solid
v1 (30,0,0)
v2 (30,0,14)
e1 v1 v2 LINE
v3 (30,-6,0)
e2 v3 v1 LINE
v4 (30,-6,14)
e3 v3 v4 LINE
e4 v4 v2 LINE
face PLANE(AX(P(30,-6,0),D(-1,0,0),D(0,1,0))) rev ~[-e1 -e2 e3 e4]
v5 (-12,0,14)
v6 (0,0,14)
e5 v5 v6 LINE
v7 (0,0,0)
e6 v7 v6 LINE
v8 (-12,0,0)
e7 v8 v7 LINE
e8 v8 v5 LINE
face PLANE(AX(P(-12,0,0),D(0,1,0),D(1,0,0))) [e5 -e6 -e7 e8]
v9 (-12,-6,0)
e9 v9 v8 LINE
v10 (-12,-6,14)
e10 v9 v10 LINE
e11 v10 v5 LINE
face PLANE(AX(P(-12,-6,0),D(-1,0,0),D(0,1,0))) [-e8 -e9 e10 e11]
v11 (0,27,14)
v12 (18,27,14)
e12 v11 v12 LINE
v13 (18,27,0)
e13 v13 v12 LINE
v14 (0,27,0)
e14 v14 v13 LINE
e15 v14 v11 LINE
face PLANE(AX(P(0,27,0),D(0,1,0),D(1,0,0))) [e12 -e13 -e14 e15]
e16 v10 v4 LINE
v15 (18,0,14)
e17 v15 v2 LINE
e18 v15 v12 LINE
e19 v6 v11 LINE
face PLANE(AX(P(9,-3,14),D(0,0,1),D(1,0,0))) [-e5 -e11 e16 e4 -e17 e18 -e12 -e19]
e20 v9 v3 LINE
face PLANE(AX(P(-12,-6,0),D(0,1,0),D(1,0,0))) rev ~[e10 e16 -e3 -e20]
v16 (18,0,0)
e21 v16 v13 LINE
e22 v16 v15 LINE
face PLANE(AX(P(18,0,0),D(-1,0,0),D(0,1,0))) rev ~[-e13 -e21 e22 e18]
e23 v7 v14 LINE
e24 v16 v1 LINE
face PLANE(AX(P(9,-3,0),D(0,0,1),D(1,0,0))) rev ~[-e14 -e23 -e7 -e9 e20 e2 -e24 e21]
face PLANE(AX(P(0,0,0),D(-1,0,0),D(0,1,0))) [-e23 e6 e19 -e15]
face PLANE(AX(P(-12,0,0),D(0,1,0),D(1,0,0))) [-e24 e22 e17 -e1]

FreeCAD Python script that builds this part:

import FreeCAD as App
import Part
import Sketcher
from FreeCAD import Vector


def add_polygon(sketch, points):
    """Adds a closed chain of lines whose ends are joined by coincident constraints."""
    first, n = sketch.GeometryCount, len(points)
    for a, b in zip(points, points[1:] + points[:1]):
        sketch.addGeometry(Part.LineSegment(App.Vector(*a, 0), App.Vector(*b, 0)), False)
    for i in range(n):
        sketch.addConstraint(Sketcher.Constraint("Coincident", first + i, 2, first + (i + 1) % n, 1))

doc = App.newDocument("Part")
params = doc.addObject("Spreadsheet::Sheet", "Params")
for row, (alias, value) in enumerate([
    ("sketch1_width", "42 mm"),
    ("sketch1_height", "6 mm"),
    ("pad1_length", "14 mm"),
    ("sketch2_width", "18 mm"),
    ("sketch2_height", "27 mm"),
    ("pad2_length", "14 mm"),
], start=1):
    params.set(f"A{row}", alias)
    params.set(f"B{row}", "=" + value)
    params.setAlias(f"B{row}", alias)

body = doc.addObject("PartDesign::Body", "Body")

sketch1 = body.newObject("Sketcher::SketchObject", "Sketch")
sketch1.AttachmentSupport = (doc.getObject("XY_Plane"), [""])
sketch1.MapMode = "FlatFace"
add_polygon(sketch1, [(-12, 0), (-12, -6), (30, -6), (30, 0)])
sketch1.addConstraint([
    Sketcher.Constraint("Vertical", 0),
    Sketcher.Constraint("Horizontal", 1),
    Sketcher.Constraint("Vertical", 2),
    Sketcher.Constraint("Horizontal", 3),
    Sketcher.Constraint("PointOnObject", 2, 2, -1),
    Sketcher.Constraint("DistanceX", 1, 1, 1, 2, 42.0),
    Sketcher.Constraint("DistanceY", 0, 2, 0, 1, 6.0),
    Sketcher.Constraint("DistanceX", 0, 2, -1, 1, 12.0),
])
sketch1.setExpression("Constraints[9]", "Params.sketch1_width")
sketch1.setExpression("Constraints[10]", "Params.sketch1_height")
pad1 = body.newObject("PartDesign::Pad", "Pad")
pad1.Profile = sketch1
pad1.setExpression("Length", "Params.pad1_length")
body2 = doc.addObject("PartDesign::Body", "Body001")

sketch2 = body2.newObject("Sketcher::SketchObject", "Sketch001")
sketch2.AttachmentSupport = (doc.getObject("XY_Plane001"), [""])
sketch2.MapMode = "FlatFace"
add_polygon(sketch2, [(0, 27), (0, 0), (18, 0), (18, 27)])
sketch2.addConstraint([
    Sketcher.Constraint("Vertical", 0),
    Sketcher.Constraint("Horizontal", 1),
    Sketcher.Constraint("Vertical", 2),
    Sketcher.Constraint("Horizontal", 3),
    Sketcher.Constraint("Coincident", 0, 2, -1, 1),
    Sketcher.Constraint("DistanceX", 1, 1, 1, 2, 18.0),
    Sketcher.Constraint("DistanceY", 0, 2, 0, 1, 27.0),
])
sketch2.setExpression("Constraints[9]", "Params.sketch2_width")
sketch2.setExpression("Constraints[10]", "Params.sketch2_height")
pad2 = body2.newObject("PartDesign::Pad", "Pad001")
pad2.Profile = sketch2
pad2.setExpression("Length", "Params.pad2_length")
doc.recompute()

boolean = body2.newObject("PartDesign::Boolean", "Boolean")
boolean.Type = "Fuse"
boolean.addObjects([body])

doc.recompute()
